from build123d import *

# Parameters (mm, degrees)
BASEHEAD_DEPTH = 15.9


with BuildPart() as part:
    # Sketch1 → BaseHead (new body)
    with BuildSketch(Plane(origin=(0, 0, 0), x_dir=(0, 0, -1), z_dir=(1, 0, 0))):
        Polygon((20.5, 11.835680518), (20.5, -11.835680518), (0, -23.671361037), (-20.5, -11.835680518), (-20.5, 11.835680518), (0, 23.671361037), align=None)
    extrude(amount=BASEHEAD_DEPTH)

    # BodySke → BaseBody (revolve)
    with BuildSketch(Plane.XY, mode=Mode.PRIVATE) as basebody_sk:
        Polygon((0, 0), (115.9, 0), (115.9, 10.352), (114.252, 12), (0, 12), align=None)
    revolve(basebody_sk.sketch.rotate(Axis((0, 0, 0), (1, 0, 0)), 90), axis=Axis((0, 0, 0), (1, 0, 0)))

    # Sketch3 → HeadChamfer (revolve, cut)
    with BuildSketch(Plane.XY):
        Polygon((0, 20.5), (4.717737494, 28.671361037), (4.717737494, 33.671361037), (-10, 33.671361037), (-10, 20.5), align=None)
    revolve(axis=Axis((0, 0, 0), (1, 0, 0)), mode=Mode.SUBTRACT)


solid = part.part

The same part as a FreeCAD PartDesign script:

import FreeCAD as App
import Part
import Sketcher
Q = App.Units.Quantity

doc = App.newDocument("Part")
body = doc.addObject("PartDesign::Body", "Body")

# Sketch on YZ plane
sketch1 = body.newObject("Sketcher::SketchObject", "Sketch")
sketch1.AttachmentSupport = (doc.getObject("YZ_Plane"), [""])
sketch1.MapMode = "FlatFace"
sketch1.addGeometry([
    Part.LineSegment(App.Vector(-12, -20, 0), App.Vector(12, -20, 0)),  # 0
    Part.LineSegment(App.Vector(12, -20, 0), App.Vector(24, 0, 0)),  # 1
    Part.LineSegment(App.Vector(24, 0, 0), App.Vector(12, 20, 0)),  # 2
    Part.LineSegment(App.Vector(12, 20, 0), App.Vector(-12, 20, 0)),  # 3
    Part.LineSegment(App.Vector(-12, 20, 0), App.Vector(-24, 0, 0)),  # 4
    Part.LineSegment(App.Vector(-24, 0, 0), App.Vector(-12, -20, 0)),  # 5
], False)
sketch1.addConstraint([
    Sketcher.Constraint("Coincident", 0, 2, 1, 1),
    Sketcher.Constraint("Coincident", 1, 2, 2, 1),
    Sketcher.Constraint("Coincident", 2, 2, 3, 1),
    Sketcher.Constraint("Coincident", 3, 2, 4, 1),
    Sketcher.Constraint("Coincident", 4, 2, 5, 1),
    Sketcher.Constraint("Coincident", 5, 2, 0, 1),
    Sketcher.Constraint("Horizontal", 0),
    Sketcher.Constraint("Horizontal", 3),
    Sketcher.Constraint("Symmetric", 0, 2, 3, 2, -1, 1),
    Sketcher.Constraint("Symmetric", 1, 2, 4, 2, -1, 1),
    Sketcher.Constraint("PointOnObject", 1, 2, -1),
    Sketcher.Constraint("Parallel", 2, 5),
    Sketcher.Constraint("Vertical", 0, 2, 2, 2),
    Sketcher.Constraint("Angle", 1, Q("60 deg")),
    Sketcher.Constraint("DistanceY", 0, 2, 2, 2, 41.0),
    Sketcher.Constraint("DistanceX", 0, 1, 0, 2, 23.671361),
])
pad1 = body.newObject("PartDesign::Pad", "Pad")
pad1.Profile = sketch1
pad1.Length = 15.9

# Sketch on XY plane
sketch2 = body.newObject("Sketcher::SketchObject", "Sketch001")
sketch2.AttachmentSupport = (doc.getObject("XY_Plane"), [""])
sketch2.MapMode = "FlatFace"
sketch2.addGeometry([
    Part.LineSegment(App.Vector(0, 0, 0), App.Vector(115.9, 0, 0)),  # 0
    Part.LineSegment(App.Vector(115.9, 0, 0), App.Vector(115.9, 10.4, 0)),  # 1
    Part.LineSegment(App.Vector(115.9, 10.4, 0), App.Vector(114.3, 12, 0)),  # 2
    Part.LineSegment(App.Vector(114.3, 12, 0), App.Vector(0, 12, 0)),  # 3
    Part.LineSegment(App.Vector(0, 12, 0), App.Vector(0, 0, 0)),  # 4
], False)
sketch2.addConstraint([
    Sketcher.Constraint("Coincident", 0, 2, 1, 1),
    Sketcher.Constraint("Coincident", 1, 2, 2, 1),
    Sketcher.Constraint("Coincident", 2, 2, 3, 1),
    Sketcher.Constraint("Coincident", 3, 2, 4, 1),
    Sketcher.Constraint("Coincident", 4, 2, 0, 1),
    Sketcher.Constraint("Horizontal", 0),
    Sketcher.Constraint("Vertical", 1),
    Sketcher.Constraint("Horizontal", 3),
    Sketcher.Constraint("Vertical", 4),
    Sketcher.Constraint("Coincident", 4, 2, -1, 1),
    Sketcher.Constraint("DistanceY", 4, 2, 4, 1, 12.0),
    Sketcher.Constraint("Angle", 2, Q("135 deg")),
    Sketcher.Constraint("DistanceX", 0, 1, 0, 2, 115.9),
    Sketcher.Constraint("DistanceX", 3, 2, 3, 1, 114.252),
])
revolution = body.newObject("PartDesign::Revolution", "Revolution")
revolution.Profile = sketch2
revolution.ReferenceAxis = (sketch2, ["H_Axis"])
revolution.Angle = 360

# Sketch on XY plane
sketch3 = body.newObject("Sketcher::SketchObject", "Sketch002")
sketch3.AttachmentSupport = (doc.getObject("XY_Plane"), [""])
sketch3.MapMode = "FlatFace"
sketch3.addGeometry([
    Part.LineSegment(App.Vector(0, 20.5, 0), App.Vector(4.7, 28.7, 0)),  # 0
    Part.LineSegment(App.Vector(4.7, 28.7, 0), App.Vector(4.7, 33.7, 0)),  # 1
    Part.LineSegment(App.Vector(4.7, 33.7, 0), App.Vector(-10, 33.7, 0)),  # 2
    Part.LineSegment(App.Vector(-10, 33.7, 0), App.Vector(-10, 20.5, 0)),  # 3
    Part.LineSegment(App.Vector(-10, 20.5, 0), App.Vector(0, 20.5, 0)),  # 4
], False)
sketch3.addConstraint([
    Sketcher.Constraint("Coincident", 0, 2, 1, 1),
    Sketcher.Constraint("Coincident", 1, 2, 2, 1),
    Sketcher.Constraint("Coincident", 2, 2, 3, 1),
    Sketcher.Constraint("Coincident", 3, 2, 4, 1),
    Sketcher.Constraint("Coincident", 4, 2, 0, 1),
    Sketcher.Constraint("Vertical", 1),
    Sketcher.Constraint("Horizontal", 2),
    Sketcher.Constraint("Vertical", 3),
    Sketcher.Constraint("Horizontal", 4),
    Sketcher.Constraint("PointOnObject", 4, 2, -2),
    Sketcher.Constraint("DistanceX", 4, 1, 4, 2, 10.0),
    Sketcher.Constraint("DistanceY", 1, 1, 1, 2, 5.0),
    Sketcher.Constraint("Angle", 0, Q("60 deg")),
    Sketcher.Constraint("DistanceY", -1, 1, 3, 2, 20.5),
    Sketcher.Constraint("DistanceY", 3, 2, 3, 1, 13.171361),
])
groove = body.newObject("PartDesign::Groove", "Groove")
groove.Profile = sketch3
groove.ReferenceAxis = (sketch3, ["H_Axis"])
groove.Angle = 360

doc.recompute()
